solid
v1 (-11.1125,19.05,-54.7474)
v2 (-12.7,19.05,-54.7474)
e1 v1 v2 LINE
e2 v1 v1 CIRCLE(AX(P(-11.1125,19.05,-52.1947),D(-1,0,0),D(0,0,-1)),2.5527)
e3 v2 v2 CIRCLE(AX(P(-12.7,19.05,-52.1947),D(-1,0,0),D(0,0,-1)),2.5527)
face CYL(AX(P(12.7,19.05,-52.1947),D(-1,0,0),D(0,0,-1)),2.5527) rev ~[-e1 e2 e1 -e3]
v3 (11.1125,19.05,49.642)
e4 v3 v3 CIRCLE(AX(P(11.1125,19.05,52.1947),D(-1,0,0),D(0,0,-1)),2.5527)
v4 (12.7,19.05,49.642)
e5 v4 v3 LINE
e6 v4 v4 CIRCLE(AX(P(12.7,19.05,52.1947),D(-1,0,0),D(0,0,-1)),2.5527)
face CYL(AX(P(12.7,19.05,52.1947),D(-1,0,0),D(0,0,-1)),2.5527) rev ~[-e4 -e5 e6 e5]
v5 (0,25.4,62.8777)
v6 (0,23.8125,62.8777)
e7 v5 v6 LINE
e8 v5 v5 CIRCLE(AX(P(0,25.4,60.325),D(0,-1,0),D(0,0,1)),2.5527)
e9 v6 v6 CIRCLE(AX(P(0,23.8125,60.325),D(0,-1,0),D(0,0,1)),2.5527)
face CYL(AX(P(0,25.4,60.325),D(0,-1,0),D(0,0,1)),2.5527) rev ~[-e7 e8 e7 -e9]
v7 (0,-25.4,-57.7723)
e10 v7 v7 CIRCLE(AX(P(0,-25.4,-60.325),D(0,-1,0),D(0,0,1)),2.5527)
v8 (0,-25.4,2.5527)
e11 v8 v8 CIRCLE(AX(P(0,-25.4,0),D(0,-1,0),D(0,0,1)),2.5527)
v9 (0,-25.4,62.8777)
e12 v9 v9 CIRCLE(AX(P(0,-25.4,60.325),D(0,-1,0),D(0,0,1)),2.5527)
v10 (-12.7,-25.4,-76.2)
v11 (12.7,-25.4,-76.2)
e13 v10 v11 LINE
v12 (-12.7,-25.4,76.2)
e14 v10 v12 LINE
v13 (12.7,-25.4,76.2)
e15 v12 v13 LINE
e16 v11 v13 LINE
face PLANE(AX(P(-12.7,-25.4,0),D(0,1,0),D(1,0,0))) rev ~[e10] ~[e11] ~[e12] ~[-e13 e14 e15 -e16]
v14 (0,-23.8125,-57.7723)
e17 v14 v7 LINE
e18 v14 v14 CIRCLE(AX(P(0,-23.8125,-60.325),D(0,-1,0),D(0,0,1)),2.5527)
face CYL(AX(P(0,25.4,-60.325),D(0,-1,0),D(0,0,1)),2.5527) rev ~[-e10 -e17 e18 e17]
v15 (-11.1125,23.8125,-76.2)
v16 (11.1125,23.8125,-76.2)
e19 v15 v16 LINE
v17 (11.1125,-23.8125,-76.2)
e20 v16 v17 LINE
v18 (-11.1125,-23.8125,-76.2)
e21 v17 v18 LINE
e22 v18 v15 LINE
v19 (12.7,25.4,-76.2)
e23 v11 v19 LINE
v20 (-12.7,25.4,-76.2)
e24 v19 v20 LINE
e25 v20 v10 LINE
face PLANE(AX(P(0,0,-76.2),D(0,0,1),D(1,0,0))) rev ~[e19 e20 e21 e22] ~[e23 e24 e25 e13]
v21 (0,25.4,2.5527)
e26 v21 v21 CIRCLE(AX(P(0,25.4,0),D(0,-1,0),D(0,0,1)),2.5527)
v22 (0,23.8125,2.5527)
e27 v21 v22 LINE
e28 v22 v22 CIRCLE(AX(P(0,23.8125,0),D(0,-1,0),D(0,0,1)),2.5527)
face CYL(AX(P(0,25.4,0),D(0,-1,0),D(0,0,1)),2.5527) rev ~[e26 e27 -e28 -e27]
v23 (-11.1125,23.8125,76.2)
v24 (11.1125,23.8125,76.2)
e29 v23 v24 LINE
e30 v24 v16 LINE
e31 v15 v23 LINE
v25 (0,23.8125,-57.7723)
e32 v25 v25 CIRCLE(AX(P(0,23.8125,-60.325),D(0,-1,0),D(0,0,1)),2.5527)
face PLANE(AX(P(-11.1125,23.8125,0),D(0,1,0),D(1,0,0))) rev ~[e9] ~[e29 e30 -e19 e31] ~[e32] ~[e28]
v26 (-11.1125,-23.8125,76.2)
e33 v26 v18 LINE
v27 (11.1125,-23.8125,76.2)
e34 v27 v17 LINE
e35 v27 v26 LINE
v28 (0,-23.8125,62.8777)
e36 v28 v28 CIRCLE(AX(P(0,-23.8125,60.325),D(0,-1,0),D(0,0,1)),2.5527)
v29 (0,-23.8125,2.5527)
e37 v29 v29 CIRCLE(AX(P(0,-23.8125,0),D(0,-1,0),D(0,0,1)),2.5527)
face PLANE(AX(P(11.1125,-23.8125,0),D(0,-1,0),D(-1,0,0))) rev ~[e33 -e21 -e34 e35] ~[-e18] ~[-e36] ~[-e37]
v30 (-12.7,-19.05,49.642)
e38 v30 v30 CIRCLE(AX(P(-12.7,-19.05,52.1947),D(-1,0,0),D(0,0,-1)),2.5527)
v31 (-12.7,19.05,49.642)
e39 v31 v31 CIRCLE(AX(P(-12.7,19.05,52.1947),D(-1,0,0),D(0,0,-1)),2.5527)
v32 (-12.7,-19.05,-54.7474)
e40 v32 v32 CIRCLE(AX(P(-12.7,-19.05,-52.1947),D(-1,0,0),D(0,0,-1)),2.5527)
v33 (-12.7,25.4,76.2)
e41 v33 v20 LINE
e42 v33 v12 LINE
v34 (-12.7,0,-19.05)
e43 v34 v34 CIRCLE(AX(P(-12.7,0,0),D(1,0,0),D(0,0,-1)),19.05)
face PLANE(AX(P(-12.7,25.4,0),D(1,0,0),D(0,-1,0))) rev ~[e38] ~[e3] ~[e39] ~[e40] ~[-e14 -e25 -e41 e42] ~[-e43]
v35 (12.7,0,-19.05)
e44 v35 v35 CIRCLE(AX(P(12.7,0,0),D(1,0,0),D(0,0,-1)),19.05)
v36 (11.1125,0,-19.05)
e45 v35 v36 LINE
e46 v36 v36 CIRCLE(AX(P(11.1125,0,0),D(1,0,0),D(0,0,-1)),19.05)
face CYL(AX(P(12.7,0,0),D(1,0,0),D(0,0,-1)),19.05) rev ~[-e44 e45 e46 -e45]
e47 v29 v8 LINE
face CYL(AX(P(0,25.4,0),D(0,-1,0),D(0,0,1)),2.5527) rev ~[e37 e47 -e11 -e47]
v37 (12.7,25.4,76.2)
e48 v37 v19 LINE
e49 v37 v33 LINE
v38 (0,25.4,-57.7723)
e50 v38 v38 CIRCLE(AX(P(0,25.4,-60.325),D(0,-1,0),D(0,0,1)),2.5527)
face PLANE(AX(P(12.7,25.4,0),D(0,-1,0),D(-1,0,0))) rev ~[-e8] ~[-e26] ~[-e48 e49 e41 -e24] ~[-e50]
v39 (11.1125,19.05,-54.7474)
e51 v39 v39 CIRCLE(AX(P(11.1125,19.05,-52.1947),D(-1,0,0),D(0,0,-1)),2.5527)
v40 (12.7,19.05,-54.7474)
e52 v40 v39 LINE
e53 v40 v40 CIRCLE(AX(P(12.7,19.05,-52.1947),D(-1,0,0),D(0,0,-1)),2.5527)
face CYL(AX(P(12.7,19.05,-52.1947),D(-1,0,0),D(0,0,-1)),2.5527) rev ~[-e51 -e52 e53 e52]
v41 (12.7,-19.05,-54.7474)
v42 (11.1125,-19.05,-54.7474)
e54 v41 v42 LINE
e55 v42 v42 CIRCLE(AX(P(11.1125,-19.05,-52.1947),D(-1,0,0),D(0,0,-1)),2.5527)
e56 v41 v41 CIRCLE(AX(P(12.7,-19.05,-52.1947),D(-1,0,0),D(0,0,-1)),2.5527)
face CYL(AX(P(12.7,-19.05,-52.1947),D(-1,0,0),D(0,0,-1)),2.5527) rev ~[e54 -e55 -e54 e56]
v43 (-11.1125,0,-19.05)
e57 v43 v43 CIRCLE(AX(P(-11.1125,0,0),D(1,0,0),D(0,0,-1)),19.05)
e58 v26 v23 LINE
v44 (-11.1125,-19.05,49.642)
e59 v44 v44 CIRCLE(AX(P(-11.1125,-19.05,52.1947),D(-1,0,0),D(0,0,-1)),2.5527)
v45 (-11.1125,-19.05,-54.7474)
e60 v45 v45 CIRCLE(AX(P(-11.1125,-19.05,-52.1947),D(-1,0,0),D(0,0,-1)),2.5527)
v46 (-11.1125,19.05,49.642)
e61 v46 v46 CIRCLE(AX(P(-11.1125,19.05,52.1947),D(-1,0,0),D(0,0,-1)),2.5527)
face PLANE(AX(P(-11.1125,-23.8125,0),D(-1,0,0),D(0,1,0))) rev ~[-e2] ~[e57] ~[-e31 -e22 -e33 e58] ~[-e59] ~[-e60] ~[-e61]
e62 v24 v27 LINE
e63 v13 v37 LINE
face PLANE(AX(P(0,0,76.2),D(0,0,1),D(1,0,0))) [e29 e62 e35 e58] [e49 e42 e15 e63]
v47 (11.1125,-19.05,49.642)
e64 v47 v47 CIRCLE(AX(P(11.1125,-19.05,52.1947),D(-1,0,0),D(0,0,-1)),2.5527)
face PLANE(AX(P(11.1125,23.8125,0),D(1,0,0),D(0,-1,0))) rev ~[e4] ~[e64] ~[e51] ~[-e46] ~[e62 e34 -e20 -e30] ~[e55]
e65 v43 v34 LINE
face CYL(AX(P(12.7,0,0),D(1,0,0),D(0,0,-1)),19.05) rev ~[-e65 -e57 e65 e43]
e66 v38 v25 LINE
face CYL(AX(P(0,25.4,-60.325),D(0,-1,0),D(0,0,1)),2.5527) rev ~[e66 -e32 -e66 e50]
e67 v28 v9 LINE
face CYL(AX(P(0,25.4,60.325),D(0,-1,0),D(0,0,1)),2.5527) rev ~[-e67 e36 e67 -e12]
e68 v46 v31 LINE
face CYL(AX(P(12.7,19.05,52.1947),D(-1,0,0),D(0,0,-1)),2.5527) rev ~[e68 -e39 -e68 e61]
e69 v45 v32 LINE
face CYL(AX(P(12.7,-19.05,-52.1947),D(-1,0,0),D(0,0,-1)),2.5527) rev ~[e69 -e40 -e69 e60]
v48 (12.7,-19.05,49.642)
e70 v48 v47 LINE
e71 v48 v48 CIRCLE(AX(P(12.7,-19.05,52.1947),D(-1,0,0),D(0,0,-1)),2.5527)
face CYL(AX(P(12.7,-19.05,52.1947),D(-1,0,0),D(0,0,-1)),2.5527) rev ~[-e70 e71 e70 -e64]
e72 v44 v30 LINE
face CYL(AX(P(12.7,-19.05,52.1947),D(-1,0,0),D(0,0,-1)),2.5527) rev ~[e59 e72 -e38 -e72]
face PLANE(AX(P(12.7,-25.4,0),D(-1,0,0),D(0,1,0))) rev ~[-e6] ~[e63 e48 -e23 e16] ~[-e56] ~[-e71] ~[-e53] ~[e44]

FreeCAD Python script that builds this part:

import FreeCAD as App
import Part
import Sketcher
Q = App.Units.Quantity


def add_polygon(sketch, points):
    """Adds a closed chain of lines whose ends are joined by coincident constraints."""
    first, n = sketch.GeometryCount, len(points)
    for a, b in zip(points, points[1:] + points[:1]):
        sketch.addGeometry(Part.LineSegment(App.Vector(*a, 0), App.Vector(*b, 0)), False)
    for i in range(n):
        sketch.addConstraint(Sketcher.Constraint("Coincident", first + i, 2, first + (i + 1) % n, 1))

doc = App.newDocument("Part")
params = doc.addObject("Spreadsheet::Sheet", "Params")
for row, (alias, value) in enumerate([
    ("sketch1_width", "1 in"),
    ("sketch1_height", "2 in"),
    ("pad1_length", "6 in"),
    ("sketch2_diameter", "0.201 in"),
    ("hole_diameter", "0.201 in"),
    ("sketch3_diameter", "0.201 in"),
    ("hole2_diameter", "0.201 in"),
    ("sketch4_diameter", "1.5 in"),
    ("pocket1_length", "1 in"),
], start=1):
    params.set(f"A{row}", alias)
    params.set(f"B{row}", "=" + value)
    params.setAlias(f"B{row}", alias)

body = doc.addObject("PartDesign::Body", "Body")

# Sketch on XY plane
sketch1 = doc.addObject("Sketcher::SketchObject", "Sketch")
body.addObject(sketch1)
sketch1.AttachmentSupport = (doc.XY_Plane, [""])
sketch1.MapMode = "FlatFace"
add_polygon(sketch1, [(-13, 25), (-13, -25), (13, -25), (13, 25)])  # lines 0-3
add_polygon(sketch1, [(-11, -24), (-11, 24), (11, 24), (11, -24)])  # lines 4-7
sketch1.addConstraint([
    Sketcher.Constraint("Vertical", 0),
    Sketcher.Constraint("Horizontal", 1),
    Sketcher.Constraint("Vertical", 2),
    Sketcher.Constraint("Horizontal", 3),
    Sketcher.Constraint("Vertical", 4),
    Sketcher.Constraint("Horizontal", 5),
    Sketcher.Constraint("Vertical", 6),
    Sketcher.Constraint("Horizontal", 7),
    Sketcher.Constraint("Symmetric", 0, 2, 2, 2, -1, 1),
    Sketcher.Constraint("Symmetric", 4, 2, 6, 2, -1, 1),
    Sketcher.Constraint("DistanceX", 1, 1, 1, 2, Q("1 in")),
    Sketcher.Constraint("DistanceY", 0, 2, 0, 1, Q("2 in")),
    Sketcher.Constraint("DistanceX", 3, 2, 4, 2, Q("0.0625 in")),
    Sketcher.Constraint("DistanceY", 4, 2, 3, 2, Q("0.0625 in")),
])
sketch1.setExpression("Constraints[18]", "Params.sketch1_width")
sketch1.setExpression("Constraints[19]", "Params.sketch1_height")
pad1 = doc.addObject("PartDesign::Pad", "Pad")
body.addObject(pad1)
pad1.Profile = sketch1
pad1.setExpression("Length", "Params.pad1_length")
pad1.Midplane = True

# Sketch on XZ plane
sketch2 = doc.addObject("Sketcher::SketchObject", "Sketch001")
body.addObject(sketch2)
sketch2.AttachmentSupport = (doc.XZ_Plane, [""])
sketch2.MapMode = "FlatFace"
sketch2.AttachmentOffset = App.Placement(App.Vector(0, 0, -1 * 25.4), App.Rotation())
sketch2.addGeometry([
    Part.Circle(App.Vector(0, -60.3, 0), App.Vector(0, 0, 1), 2.6),
    Part.Circle(App.Vector(0, 60.3, 0), App.Vector(0, 0, 1), 2.6),
    Part.Circle(App.Vector(0, 0, 0), App.Vector(0, 0, 1), 2.6),
], False)
sketch2.addConstraint([
    Sketcher.Constraint("Coincident", 2, 3, -1, 1),
    Sketcher.Constraint("Equal", 0, 1),
    Sketcher.Constraint("Equal", 1, 2),
    Sketcher.Constraint("Symmetric", 0, 3, 1, 3, -1, 1),
    Sketcher.Constraint("PointOnObject", 0, 3, -2),
    Sketcher.Constraint("Diameter", 0, Q("0.201 in")),
    Sketcher.Constraint("DistanceY", 0, 3, 1, 3, Q("4.75 in")),
])
sketch2.setExpression("Constraints[5]", "Params.sketch2_diameter")
doc.recompute()
hole = doc.addObject("PartDesign::Hole", "Hole")
body.addObject(hole)
hole.Profile = sketch2
hole.ThreadType = "None"
hole.setExpression("Diameter", "Params.hole_diameter")
hole.DepthType = "ThroughAll"
hole.Reversed = True

# Sketch on YZ plane
sketch3 = doc.addObject("Sketcher::SketchObject", "Sketch002")
body.addObject(sketch3)
sketch3.AttachmentSupport = (doc.YZ_Plane, [""])
sketch3.MapMode = "FlatFace"
sketch3.AttachmentOffset = App.Placement(App.Vector(0, 0, 0.5 * 25.4), App.Rotation())
sketch3.addGeometry([
    Part.Circle(App.Vector(19.1, 52.2, 0), App.Vector(0, 0, 1), 2.6),
    Part.Circle(App.Vector(19.1, -52.2, 0), App.Vector(0, 0, 1), 2.6),
    Part.Circle(App.Vector(-19.1, -52.2, 0), App.Vector(0, 0, 1), 2.6),
    Part.Circle(App.Vector(-19.1, 52.2, 0), App.Vector(0, 0, 1), 2.6),
], False)
sketch3.addConstraint([
    Sketcher.Constraint("Equal", 0, 1),
    Sketcher.Constraint("Equal", 1, 2),
    Sketcher.Constraint("Equal", 2, 3),
    Sketcher.Constraint("Symmetric", 0, 3, 2, 3, -1, 1),
    Sketcher.Constraint("Symmetric", 1, 3, 3, 3, -1, 1),
    Sketcher.Constraint("Symmetric", 1, 3, 2, 3, -2),
    Sketcher.Constraint("Diameter", 0, Q("0.201 in")),
    Sketcher.Constraint("DistanceX", 2, 3, 1, 3, Q("1.5 in")),
    Sketcher.Constraint("DistanceY", -1, 1, 0, 3, Q("2.0549 in")),
])
sketch3.setExpression("Constraints[6]", "Params.sketch3_diameter")
doc.recompute()
hole2 = doc.addObject("PartDesign::Hole", "Hole001")
body.addObject(hole2)
hole2.Profile = sketch3
hole2.ThreadType = "None"
hole2.setExpression("Diameter", "Params.hole2_diameter")
hole2.DepthType = "ThroughAll"

# Sketch on YZ plane
sketch4 = doc.addObject("Sketcher::SketchObject", "Sketch003")
body.addObject(sketch4)
sketch4.AttachmentSupport = (doc.YZ_Plane, [""])
sketch4.MapMode = "FlatFace"
sketch4.AttachmentOffset = App.Placement(App.Vector(0, 0, 0.5 * 25.4), App.Rotation())
sketch4.addGeometry(Part.Circle(App.Vector(0, 0, 0), App.Vector(0, 0, 1), 19), False)
sketch4.addConstraint([
    Sketcher.Constraint("Coincident", 0, 3, -1, 1),
    Sketcher.Constraint("Diameter", 0, Q("1.5 in")),
])
sketch4.setExpression("Constraints[1]", "Params.sketch4_diameter")
pocket1 = doc.addObject("PartDesign::Pocket", "Pocket")
body.addObject(pocket1)
pocket1.Profile = sketch4
pocket1.setExpression("Length", "Params.pocket1_length")

doc.recompute()
